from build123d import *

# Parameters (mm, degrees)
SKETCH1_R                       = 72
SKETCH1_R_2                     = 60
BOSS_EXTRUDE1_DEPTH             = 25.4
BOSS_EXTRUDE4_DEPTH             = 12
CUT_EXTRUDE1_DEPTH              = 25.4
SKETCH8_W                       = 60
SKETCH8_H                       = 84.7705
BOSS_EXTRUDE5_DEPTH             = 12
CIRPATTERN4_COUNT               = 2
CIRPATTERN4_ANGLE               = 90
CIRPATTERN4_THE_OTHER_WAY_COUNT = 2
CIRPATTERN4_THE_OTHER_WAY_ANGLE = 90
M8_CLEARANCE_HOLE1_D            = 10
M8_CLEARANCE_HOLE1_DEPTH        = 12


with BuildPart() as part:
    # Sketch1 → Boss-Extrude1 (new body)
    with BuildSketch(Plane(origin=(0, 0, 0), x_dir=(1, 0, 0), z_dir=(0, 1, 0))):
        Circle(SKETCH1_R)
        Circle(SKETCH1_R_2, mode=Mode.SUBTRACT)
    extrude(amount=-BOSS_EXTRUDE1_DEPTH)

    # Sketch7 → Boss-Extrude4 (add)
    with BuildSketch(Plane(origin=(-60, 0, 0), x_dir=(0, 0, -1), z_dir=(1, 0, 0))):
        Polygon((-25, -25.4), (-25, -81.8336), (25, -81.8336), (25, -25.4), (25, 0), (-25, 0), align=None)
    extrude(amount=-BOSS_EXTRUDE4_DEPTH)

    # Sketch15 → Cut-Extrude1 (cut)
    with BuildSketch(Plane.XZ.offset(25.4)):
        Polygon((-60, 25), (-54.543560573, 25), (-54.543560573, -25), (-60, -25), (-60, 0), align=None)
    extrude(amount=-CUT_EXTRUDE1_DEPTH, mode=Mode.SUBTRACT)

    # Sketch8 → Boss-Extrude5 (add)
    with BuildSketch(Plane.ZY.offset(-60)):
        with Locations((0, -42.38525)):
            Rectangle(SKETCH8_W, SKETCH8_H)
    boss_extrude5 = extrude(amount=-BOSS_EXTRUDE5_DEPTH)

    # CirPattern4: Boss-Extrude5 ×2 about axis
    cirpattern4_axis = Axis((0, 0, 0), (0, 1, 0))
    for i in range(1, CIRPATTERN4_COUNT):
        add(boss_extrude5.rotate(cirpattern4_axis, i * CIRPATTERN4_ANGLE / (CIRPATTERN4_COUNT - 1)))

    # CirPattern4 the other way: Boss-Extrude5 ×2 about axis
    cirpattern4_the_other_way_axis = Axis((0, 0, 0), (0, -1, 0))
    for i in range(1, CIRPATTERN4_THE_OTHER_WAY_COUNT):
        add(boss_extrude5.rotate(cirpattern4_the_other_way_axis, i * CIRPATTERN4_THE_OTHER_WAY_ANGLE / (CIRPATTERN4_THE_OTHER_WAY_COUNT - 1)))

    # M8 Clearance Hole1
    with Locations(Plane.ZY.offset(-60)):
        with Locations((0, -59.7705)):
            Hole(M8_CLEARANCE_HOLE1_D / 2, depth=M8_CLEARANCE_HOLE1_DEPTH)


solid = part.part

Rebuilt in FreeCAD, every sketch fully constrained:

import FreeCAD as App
import Part
import Sketcher
from FreeCAD import Vector


def add_polygon(sketch, points):
    """Adds a closed chain of lines whose ends are joined by coincident constraints."""
    first, n = sketch.GeometryCount, len(points)
    for a, b in zip(points, points[1:] + points[:1]):
        sketch.addGeometry(Part.LineSegment(App.Vector(*a, 0), App.Vector(*b, 0)), False)
    for i in range(n):
        sketch.addConstraint(Sketcher.Constraint("Coincident", first + i, 2, first + (i + 1) % n, 1))

doc = App.newDocument("Part")
params = doc.addObject("Spreadsheet::Sheet", "Params")
for row, (alias, value) in enumerate([
    ("sketch1_diameter", "144 mm"),
    ("sketch1_diameter2", "120 mm"),
    ("pad1_length", "25.4 mm"),
    ("sketch2_height", "50 mm"),
    ("pad2_length", "12 mm"),
    ("sketch3_height", "50 mm"),
    ("pocket1_length", "25.4 mm"),
    ("sketch4_height", "60 mm"),
    ("pad3_length", "12 mm"),
    ("sketch5_diameter", "10 mm"),
    ("hole_diameter", "10 mm"),
    ("hole_depth", "12 mm"),
], start=1):
    params.set(f"A{row}", alias)
    params.set(f"B{row}", "=" + value)
    params.setAlias(f"B{row}", alias)

body = doc.addObject("PartDesign::Body", "Body")

sketch1 = body.newObject("Sketcher::SketchObject", "Sketch")
sketch1.AttachmentSupport = (doc.getObject("XZ_Plane"), [""])
sketch1.MapMode = "FlatFace"
sketch1.addGeometry([
    Part.Circle(Vector(0, 0, 0), Vector(0, 0, 1), 72),
    Part.Circle(Vector(0, 0, 0), Vector(0, 0, 1), 60),
], False)
sketch1.addConstraint([
    Sketcher.Constraint("Coincident", 0, 3, -1, 1),
    Sketcher.Constraint("Coincident", 1, 3, -1, 1),
    Sketcher.Constraint("Diameter", 0, 144.0),
    Sketcher.Constraint("Diameter", 1, 120.0),
])
sketch1.setExpression("Constraints[2]", "Params.sketch1_diameter")
sketch1.setExpression("Constraints[3]", "Params.sketch1_diameter2")
pad1 = body.newObject("PartDesign::Pad", "Pad")
pad1.Profile = sketch1
pad1.setExpression("Length", "Params.pad1_length")

sketch2 = body.newObject("Sketcher::SketchObject", "Sketch001")
sketch2.AttachmentSupport = (doc.getObject("YZ_Plane"), [""])
sketch2.MapMode = "FlatFace"
sketch2.AttachmentOffset = App.Placement(Vector(0, 0, -60), App.Rotation())
add_polygon(sketch2, [(-82, 25), (-82, -25), (0, -25), (0, 25)])
sketch2.addConstraint([
    Sketcher.Constraint("Vertical", 0),
    Sketcher.Constraint("Horizontal", 1),
    Sketcher.Constraint("Vertical", 2),
    Sketcher.Constraint("Horizontal", 3),
    Sketcher.Constraint("Symmetric", 1, 2, 2, 2, -1, 1),
    Sketcher.Constraint("DistanceY", 0, 2, 0, 1, 50.0),
    Sketcher.Constraint("DistanceX", 1, 1, 1, 2, 81.8336),
])
sketch2.setExpression("Constraints[9]", "Params.sketch2_height")
pad2 = body.newObject("PartDesign::Pad", "Pad001")
pad2.Profile = sketch2
pad2.setExpression("Length", "Params.pad2_length")
pad2.Reversed = True

sketch3 = body.newObject("Sketcher::SketchObject", "Sketch002")
sketch3.AttachmentSupport = (doc.getObject("XZ_Plane"), [""])
sketch3.MapMode = "FlatFace"
sketch3.AttachmentOffset = App.Placement(Vector(0, 0, 25.4), App.Rotation())
add_polygon(sketch3, [(-55, 25), (-60, 25), (-60, -25), (-55, -25)])
sketch3.addConstraint([
    Sketcher.Constraint("Horizontal", 0),
    Sketcher.Constraint("Vertical", 1),
    Sketcher.Constraint("Horizontal", 2),
    Sketcher.Constraint("Vertical", 3),
    Sketcher.Constraint("DistanceY", 1, 2, 1, 1, 50.0),
    Sketcher.Constraint("DistanceX", 0, 2, -1, 1, 60.0),
    Sketcher.Constraint("DistanceY", -1, 1, 0, 2, 25.0),
    Sketcher.Constraint("DistanceX", 0, 2, 0, 1, 5.456439),
])
sketch3.setExpression("Constraints[8]", "Params.sketch3_height")
pocket1 = body.newObject("PartDesign::Pocket", "Pocket")
pocket1.Profile = sketch3
pocket1.setExpression("Length", "Params.pocket1_length")

sketch4 = body.newObject("Sketcher::SketchObject", "Sketch003")
sketch4.AttachmentSupport = (doc.getObject("YZ_Plane"), [""])
sketch4.MapMode = "FlatFace"
sketch4.AttachmentOffset = App.Placement(Vector(0, 0, 60), App.Rotation())
add_polygon(sketch4, [(0, -30), (-85, -30), (-85, 30), (0, 30)])
sketch4.addConstraint([
    Sketcher.Constraint("Horizontal", 0),
    Sketcher.Constraint("Vertical", 1),
    Sketcher.Constraint("Horizontal", 2),
    Sketcher.Constraint("Vertical", 3),
    Sketcher.Constraint("Symmetric", 2, 2, 3, 2, -1, 1),
    Sketcher.Constraint("DistanceY", 1, 1, 1, 2, 60.0),
    Sketcher.Constraint("DistanceX", 0, 2, 0, 1, 84.7705),
])
sketch4.setExpression("Constraints[9]", "Params.sketch4_height")
pad3 = body.newObject("PartDesign::Pad", "Pad002")
pad3.Profile = sketch4
pad3.setExpression("Length", "Params.pad3_length")
doc.recompute()

polarpattern = body.newObject("PartDesign::PolarPattern", "PolarPattern")
polarpattern.Originals = [pad3]
polarpattern.Axis = (doc.getObject("Y_Axis"), [""])
polarpattern.Angle = 90
polarpattern.Occurrences = 2
body.Tip = polarpattern
doc.recompute()

polarpattern2 = body.newObject("PartDesign::PolarPattern", "PolarPattern001")
polarpattern2.Originals = [pad3]
polarpattern2.Axis = (doc.getObject("Y_Axis"), [""])
polarpattern2.Angle = 90
polarpattern2.Occurrences = 2
polarpattern2.Reversed = True
body.Tip = polarpattern2

sketch5 = body.newObject("Sketcher::SketchObject", "Sketch004")
sketch5.AttachmentSupport = (doc.getObject("YZ_Plane"), [""])
sketch5.MapMode = "FlatFace"
sketch5.AttachmentOffset = App.Placement(Vector(0, 0, 60), App.Rotation())
sketch5.addGeometry(Part.Circle(Vector(-60, 0, 0), Vector(0, 0, 1), 5), False)
sketch5.addConstraint([
    Sketcher.Constraint("PointOnObject", 0, 3, -1),
    Sketcher.Constraint("Diameter", 0, 10.0),
    Sketcher.Constraint("DistanceX", 0, 3, -1, 1, 59.7705),
])
sketch5.setExpression("Constraints[1]", "Params.sketch5_diameter")
doc.recompute()
hole = body.newObject("PartDesign::Hole", "Hole")
hole.Profile = sketch5
hole.ThreadType = "None"
hole.setExpression("Diameter", "Params.hole_diameter")
hole.DepthType = "Dimension"
hole.setExpression("Depth", "Params.hole_depth")
hole.DrillPoint = "Flat"
hole.Reversed = True

doc.recompute()
